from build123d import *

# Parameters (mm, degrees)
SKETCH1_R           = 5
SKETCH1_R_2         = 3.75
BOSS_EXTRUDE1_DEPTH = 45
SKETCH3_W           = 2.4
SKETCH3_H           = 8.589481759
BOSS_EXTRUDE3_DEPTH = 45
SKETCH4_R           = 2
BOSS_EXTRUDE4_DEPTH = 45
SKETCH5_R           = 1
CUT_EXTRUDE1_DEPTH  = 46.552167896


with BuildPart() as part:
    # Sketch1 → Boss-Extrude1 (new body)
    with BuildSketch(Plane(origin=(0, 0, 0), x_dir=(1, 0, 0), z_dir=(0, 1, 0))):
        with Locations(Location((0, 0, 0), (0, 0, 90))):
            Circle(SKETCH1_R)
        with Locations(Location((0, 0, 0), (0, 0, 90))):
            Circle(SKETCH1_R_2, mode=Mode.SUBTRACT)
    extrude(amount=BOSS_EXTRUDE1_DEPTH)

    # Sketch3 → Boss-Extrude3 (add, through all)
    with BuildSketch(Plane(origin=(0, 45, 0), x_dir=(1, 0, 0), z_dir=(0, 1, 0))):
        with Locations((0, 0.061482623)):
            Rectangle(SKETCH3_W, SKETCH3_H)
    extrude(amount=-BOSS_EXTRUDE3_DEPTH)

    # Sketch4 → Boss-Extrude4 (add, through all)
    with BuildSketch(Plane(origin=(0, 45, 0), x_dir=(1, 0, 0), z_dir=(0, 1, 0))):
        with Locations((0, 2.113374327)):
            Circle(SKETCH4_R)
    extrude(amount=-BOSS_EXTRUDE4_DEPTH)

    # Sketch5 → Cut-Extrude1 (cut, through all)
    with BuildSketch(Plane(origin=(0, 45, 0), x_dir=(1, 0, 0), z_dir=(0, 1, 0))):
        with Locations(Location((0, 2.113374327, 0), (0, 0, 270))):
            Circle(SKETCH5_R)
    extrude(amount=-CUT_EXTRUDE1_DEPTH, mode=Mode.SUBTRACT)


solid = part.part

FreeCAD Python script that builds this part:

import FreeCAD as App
import Part
import Sketcher
Q = App.Units.Quantity

doc = App.newDocument("Part")
body = doc.addObject("PartDesign::Body", "Body")

sketch1 = doc.addObject("Sketcher::SketchObject", "Sketch")
body.addObject(sketch1)
sketch1.AttachmentSupport = (doc.XZ_Plane, [""])
sketch1.MapMode = "FlatFace"
sketch1.addGeometry([
    Part.Circle(App.Vector(0, 0, 0), App.Vector(0, 0, 1), 5),
    Part.Circle(App.Vector(0, 0, 0), App.Vector(0, 0, 1), 3.75),
], False)
sketch1.addConstraint([
    Sketcher.Constraint("Coincident", 0, 3, -1, 1),
    Sketcher.Constraint("Coincident", 1, 3, -1, 1),
    Sketcher.Constraint("Diameter", 0, Q("10 mm")),
    Sketcher.Constraint("Diameter", 1, Q("7.5 mm")),
])
pad1 = doc.addObject("PartDesign::Pad", "Pad")
body.addObject(pad1)
pad1.Profile = sketch1
pad1.Length = 45
pad1.Reversed = True

sketch2 = doc.addObject("Sketcher::SketchObject", "Sketch001")
body.addObject(sketch2)
sketch2.AttachmentSupport = (doc.XZ_Plane, [""])
sketch2.MapMode = "FlatFace"
sketch2.AttachmentOffset = App.Placement(App.Vector(0, 0, -45), App.Rotation())
sketch2.addGeometry([
    Part.LineSegment(App.Vector(-1.2, -4.356224, 0), App.Vector(-1.2, 4.233258, 0)),
    Part.LineSegment(App.Vector(-1.2, 4.233258, 0), App.Vector(1.2, 4.233258, 0)),
    Part.LineSegment(App.Vector(1.2, 4.233258, 0), App.Vector(1.2, -4.356224, 0)),
    Part.LineSegment(App.Vector(1.2, -4.356224, 0), App.Vector(-1.2, -4.356224, 0)),
], False)
sketch2.addConstraint([
    Sketcher.Constraint("Coincident", 0, 2, 1, 1),
    Sketcher.Constraint("Coincident", 1, 2, 2, 1),
    Sketcher.Constraint("Coincident", 2, 2, 3, 1),
    Sketcher.Constraint("Coincident", 3, 2, 0, 1),
    Sketcher.Constraint("Vertical", 0),
    Sketcher.Constraint("Horizontal", 1),
    Sketcher.Constraint("Vertical", 2),
    Sketcher.Constraint("Horizontal", 3),
    Sketcher.Constraint("DistanceX", 1, 1, 1, 2, Q("2.4 mm")),
    Sketcher.Constraint("DistanceX", 0, 2, -1, 1, Q("1.2 mm")),
    Sketcher.Constraint("DistanceY", 0, 1, 0, 2, Q("8.589482 mm")),
    Sketcher.Constraint("DistanceY", -1, 1, 0, 2, Q("4.233258 mm")),
])
pad2 = doc.addObject("PartDesign::Pad", "Pad001")
body.addObject(pad2)
pad2.Profile = sketch2
pad2.Length = 45

sketch3 = doc.addObject("Sketcher::SketchObject", "Sketch002")
body.addObject(sketch3)
sketch3.AttachmentSupport = (doc.XZ_Plane, [""])
sketch3.MapMode = "FlatFace"
sketch3.AttachmentOffset = App.Placement(App.Vector(0, 0, -45), App.Rotation())
sketch3.addGeometry(Part.Circle(App.Vector(0, -2.113374, 0), App.Vector(0, 0, 1), 2), False)
sketch3.addConstraint([
    Sketcher.Constraint("PointOnObject", 0, 3, -2),
    Sketcher.Constraint("Diameter", 0, Q("4 mm")),
    Sketcher.Constraint("DistanceY", 0, 3, -1, 1, Q("2.113374 mm")),
])
pad3 = doc.addObject("PartDesign::Pad", "Pad002")
body.addObject(pad3)
pad3.Profile = sketch3
pad3.Type = "UpToLast"

sketch4 = doc.addObject("Sketcher::SketchObject", "Sketch003")
body.addObject(sketch4)
sketch4.AttachmentSupport = (doc.XZ_Plane, [""])
sketch4.MapMode = "FlatFace"
sketch4.AttachmentOffset = App.Placement(App.Vector(0, 0, -45), App.Rotation())
sketch4.addGeometry(Part.Circle(App.Vector(0, -2.113374, 0), App.Vector(0, 0, 1), 1), False)
sketch4.addConstraint([
    Sketcher.Constraint("PointOnObject", 0, 3, -2),
    Sketcher.Constraint("Diameter", 0, Q("2 mm")),
    Sketcher.Constraint("DistanceY", 0, 3, -1, 1, Q("2.113374 mm")),
])
pocket1 = doc.addObject("PartDesign::Pocket", "Pocket")
body.addObject(pocket1)
pocket1.Profile = sketch4
pocket1.Type = "ThroughAll"
pocket1.Reversed = True

doc.recompute()
